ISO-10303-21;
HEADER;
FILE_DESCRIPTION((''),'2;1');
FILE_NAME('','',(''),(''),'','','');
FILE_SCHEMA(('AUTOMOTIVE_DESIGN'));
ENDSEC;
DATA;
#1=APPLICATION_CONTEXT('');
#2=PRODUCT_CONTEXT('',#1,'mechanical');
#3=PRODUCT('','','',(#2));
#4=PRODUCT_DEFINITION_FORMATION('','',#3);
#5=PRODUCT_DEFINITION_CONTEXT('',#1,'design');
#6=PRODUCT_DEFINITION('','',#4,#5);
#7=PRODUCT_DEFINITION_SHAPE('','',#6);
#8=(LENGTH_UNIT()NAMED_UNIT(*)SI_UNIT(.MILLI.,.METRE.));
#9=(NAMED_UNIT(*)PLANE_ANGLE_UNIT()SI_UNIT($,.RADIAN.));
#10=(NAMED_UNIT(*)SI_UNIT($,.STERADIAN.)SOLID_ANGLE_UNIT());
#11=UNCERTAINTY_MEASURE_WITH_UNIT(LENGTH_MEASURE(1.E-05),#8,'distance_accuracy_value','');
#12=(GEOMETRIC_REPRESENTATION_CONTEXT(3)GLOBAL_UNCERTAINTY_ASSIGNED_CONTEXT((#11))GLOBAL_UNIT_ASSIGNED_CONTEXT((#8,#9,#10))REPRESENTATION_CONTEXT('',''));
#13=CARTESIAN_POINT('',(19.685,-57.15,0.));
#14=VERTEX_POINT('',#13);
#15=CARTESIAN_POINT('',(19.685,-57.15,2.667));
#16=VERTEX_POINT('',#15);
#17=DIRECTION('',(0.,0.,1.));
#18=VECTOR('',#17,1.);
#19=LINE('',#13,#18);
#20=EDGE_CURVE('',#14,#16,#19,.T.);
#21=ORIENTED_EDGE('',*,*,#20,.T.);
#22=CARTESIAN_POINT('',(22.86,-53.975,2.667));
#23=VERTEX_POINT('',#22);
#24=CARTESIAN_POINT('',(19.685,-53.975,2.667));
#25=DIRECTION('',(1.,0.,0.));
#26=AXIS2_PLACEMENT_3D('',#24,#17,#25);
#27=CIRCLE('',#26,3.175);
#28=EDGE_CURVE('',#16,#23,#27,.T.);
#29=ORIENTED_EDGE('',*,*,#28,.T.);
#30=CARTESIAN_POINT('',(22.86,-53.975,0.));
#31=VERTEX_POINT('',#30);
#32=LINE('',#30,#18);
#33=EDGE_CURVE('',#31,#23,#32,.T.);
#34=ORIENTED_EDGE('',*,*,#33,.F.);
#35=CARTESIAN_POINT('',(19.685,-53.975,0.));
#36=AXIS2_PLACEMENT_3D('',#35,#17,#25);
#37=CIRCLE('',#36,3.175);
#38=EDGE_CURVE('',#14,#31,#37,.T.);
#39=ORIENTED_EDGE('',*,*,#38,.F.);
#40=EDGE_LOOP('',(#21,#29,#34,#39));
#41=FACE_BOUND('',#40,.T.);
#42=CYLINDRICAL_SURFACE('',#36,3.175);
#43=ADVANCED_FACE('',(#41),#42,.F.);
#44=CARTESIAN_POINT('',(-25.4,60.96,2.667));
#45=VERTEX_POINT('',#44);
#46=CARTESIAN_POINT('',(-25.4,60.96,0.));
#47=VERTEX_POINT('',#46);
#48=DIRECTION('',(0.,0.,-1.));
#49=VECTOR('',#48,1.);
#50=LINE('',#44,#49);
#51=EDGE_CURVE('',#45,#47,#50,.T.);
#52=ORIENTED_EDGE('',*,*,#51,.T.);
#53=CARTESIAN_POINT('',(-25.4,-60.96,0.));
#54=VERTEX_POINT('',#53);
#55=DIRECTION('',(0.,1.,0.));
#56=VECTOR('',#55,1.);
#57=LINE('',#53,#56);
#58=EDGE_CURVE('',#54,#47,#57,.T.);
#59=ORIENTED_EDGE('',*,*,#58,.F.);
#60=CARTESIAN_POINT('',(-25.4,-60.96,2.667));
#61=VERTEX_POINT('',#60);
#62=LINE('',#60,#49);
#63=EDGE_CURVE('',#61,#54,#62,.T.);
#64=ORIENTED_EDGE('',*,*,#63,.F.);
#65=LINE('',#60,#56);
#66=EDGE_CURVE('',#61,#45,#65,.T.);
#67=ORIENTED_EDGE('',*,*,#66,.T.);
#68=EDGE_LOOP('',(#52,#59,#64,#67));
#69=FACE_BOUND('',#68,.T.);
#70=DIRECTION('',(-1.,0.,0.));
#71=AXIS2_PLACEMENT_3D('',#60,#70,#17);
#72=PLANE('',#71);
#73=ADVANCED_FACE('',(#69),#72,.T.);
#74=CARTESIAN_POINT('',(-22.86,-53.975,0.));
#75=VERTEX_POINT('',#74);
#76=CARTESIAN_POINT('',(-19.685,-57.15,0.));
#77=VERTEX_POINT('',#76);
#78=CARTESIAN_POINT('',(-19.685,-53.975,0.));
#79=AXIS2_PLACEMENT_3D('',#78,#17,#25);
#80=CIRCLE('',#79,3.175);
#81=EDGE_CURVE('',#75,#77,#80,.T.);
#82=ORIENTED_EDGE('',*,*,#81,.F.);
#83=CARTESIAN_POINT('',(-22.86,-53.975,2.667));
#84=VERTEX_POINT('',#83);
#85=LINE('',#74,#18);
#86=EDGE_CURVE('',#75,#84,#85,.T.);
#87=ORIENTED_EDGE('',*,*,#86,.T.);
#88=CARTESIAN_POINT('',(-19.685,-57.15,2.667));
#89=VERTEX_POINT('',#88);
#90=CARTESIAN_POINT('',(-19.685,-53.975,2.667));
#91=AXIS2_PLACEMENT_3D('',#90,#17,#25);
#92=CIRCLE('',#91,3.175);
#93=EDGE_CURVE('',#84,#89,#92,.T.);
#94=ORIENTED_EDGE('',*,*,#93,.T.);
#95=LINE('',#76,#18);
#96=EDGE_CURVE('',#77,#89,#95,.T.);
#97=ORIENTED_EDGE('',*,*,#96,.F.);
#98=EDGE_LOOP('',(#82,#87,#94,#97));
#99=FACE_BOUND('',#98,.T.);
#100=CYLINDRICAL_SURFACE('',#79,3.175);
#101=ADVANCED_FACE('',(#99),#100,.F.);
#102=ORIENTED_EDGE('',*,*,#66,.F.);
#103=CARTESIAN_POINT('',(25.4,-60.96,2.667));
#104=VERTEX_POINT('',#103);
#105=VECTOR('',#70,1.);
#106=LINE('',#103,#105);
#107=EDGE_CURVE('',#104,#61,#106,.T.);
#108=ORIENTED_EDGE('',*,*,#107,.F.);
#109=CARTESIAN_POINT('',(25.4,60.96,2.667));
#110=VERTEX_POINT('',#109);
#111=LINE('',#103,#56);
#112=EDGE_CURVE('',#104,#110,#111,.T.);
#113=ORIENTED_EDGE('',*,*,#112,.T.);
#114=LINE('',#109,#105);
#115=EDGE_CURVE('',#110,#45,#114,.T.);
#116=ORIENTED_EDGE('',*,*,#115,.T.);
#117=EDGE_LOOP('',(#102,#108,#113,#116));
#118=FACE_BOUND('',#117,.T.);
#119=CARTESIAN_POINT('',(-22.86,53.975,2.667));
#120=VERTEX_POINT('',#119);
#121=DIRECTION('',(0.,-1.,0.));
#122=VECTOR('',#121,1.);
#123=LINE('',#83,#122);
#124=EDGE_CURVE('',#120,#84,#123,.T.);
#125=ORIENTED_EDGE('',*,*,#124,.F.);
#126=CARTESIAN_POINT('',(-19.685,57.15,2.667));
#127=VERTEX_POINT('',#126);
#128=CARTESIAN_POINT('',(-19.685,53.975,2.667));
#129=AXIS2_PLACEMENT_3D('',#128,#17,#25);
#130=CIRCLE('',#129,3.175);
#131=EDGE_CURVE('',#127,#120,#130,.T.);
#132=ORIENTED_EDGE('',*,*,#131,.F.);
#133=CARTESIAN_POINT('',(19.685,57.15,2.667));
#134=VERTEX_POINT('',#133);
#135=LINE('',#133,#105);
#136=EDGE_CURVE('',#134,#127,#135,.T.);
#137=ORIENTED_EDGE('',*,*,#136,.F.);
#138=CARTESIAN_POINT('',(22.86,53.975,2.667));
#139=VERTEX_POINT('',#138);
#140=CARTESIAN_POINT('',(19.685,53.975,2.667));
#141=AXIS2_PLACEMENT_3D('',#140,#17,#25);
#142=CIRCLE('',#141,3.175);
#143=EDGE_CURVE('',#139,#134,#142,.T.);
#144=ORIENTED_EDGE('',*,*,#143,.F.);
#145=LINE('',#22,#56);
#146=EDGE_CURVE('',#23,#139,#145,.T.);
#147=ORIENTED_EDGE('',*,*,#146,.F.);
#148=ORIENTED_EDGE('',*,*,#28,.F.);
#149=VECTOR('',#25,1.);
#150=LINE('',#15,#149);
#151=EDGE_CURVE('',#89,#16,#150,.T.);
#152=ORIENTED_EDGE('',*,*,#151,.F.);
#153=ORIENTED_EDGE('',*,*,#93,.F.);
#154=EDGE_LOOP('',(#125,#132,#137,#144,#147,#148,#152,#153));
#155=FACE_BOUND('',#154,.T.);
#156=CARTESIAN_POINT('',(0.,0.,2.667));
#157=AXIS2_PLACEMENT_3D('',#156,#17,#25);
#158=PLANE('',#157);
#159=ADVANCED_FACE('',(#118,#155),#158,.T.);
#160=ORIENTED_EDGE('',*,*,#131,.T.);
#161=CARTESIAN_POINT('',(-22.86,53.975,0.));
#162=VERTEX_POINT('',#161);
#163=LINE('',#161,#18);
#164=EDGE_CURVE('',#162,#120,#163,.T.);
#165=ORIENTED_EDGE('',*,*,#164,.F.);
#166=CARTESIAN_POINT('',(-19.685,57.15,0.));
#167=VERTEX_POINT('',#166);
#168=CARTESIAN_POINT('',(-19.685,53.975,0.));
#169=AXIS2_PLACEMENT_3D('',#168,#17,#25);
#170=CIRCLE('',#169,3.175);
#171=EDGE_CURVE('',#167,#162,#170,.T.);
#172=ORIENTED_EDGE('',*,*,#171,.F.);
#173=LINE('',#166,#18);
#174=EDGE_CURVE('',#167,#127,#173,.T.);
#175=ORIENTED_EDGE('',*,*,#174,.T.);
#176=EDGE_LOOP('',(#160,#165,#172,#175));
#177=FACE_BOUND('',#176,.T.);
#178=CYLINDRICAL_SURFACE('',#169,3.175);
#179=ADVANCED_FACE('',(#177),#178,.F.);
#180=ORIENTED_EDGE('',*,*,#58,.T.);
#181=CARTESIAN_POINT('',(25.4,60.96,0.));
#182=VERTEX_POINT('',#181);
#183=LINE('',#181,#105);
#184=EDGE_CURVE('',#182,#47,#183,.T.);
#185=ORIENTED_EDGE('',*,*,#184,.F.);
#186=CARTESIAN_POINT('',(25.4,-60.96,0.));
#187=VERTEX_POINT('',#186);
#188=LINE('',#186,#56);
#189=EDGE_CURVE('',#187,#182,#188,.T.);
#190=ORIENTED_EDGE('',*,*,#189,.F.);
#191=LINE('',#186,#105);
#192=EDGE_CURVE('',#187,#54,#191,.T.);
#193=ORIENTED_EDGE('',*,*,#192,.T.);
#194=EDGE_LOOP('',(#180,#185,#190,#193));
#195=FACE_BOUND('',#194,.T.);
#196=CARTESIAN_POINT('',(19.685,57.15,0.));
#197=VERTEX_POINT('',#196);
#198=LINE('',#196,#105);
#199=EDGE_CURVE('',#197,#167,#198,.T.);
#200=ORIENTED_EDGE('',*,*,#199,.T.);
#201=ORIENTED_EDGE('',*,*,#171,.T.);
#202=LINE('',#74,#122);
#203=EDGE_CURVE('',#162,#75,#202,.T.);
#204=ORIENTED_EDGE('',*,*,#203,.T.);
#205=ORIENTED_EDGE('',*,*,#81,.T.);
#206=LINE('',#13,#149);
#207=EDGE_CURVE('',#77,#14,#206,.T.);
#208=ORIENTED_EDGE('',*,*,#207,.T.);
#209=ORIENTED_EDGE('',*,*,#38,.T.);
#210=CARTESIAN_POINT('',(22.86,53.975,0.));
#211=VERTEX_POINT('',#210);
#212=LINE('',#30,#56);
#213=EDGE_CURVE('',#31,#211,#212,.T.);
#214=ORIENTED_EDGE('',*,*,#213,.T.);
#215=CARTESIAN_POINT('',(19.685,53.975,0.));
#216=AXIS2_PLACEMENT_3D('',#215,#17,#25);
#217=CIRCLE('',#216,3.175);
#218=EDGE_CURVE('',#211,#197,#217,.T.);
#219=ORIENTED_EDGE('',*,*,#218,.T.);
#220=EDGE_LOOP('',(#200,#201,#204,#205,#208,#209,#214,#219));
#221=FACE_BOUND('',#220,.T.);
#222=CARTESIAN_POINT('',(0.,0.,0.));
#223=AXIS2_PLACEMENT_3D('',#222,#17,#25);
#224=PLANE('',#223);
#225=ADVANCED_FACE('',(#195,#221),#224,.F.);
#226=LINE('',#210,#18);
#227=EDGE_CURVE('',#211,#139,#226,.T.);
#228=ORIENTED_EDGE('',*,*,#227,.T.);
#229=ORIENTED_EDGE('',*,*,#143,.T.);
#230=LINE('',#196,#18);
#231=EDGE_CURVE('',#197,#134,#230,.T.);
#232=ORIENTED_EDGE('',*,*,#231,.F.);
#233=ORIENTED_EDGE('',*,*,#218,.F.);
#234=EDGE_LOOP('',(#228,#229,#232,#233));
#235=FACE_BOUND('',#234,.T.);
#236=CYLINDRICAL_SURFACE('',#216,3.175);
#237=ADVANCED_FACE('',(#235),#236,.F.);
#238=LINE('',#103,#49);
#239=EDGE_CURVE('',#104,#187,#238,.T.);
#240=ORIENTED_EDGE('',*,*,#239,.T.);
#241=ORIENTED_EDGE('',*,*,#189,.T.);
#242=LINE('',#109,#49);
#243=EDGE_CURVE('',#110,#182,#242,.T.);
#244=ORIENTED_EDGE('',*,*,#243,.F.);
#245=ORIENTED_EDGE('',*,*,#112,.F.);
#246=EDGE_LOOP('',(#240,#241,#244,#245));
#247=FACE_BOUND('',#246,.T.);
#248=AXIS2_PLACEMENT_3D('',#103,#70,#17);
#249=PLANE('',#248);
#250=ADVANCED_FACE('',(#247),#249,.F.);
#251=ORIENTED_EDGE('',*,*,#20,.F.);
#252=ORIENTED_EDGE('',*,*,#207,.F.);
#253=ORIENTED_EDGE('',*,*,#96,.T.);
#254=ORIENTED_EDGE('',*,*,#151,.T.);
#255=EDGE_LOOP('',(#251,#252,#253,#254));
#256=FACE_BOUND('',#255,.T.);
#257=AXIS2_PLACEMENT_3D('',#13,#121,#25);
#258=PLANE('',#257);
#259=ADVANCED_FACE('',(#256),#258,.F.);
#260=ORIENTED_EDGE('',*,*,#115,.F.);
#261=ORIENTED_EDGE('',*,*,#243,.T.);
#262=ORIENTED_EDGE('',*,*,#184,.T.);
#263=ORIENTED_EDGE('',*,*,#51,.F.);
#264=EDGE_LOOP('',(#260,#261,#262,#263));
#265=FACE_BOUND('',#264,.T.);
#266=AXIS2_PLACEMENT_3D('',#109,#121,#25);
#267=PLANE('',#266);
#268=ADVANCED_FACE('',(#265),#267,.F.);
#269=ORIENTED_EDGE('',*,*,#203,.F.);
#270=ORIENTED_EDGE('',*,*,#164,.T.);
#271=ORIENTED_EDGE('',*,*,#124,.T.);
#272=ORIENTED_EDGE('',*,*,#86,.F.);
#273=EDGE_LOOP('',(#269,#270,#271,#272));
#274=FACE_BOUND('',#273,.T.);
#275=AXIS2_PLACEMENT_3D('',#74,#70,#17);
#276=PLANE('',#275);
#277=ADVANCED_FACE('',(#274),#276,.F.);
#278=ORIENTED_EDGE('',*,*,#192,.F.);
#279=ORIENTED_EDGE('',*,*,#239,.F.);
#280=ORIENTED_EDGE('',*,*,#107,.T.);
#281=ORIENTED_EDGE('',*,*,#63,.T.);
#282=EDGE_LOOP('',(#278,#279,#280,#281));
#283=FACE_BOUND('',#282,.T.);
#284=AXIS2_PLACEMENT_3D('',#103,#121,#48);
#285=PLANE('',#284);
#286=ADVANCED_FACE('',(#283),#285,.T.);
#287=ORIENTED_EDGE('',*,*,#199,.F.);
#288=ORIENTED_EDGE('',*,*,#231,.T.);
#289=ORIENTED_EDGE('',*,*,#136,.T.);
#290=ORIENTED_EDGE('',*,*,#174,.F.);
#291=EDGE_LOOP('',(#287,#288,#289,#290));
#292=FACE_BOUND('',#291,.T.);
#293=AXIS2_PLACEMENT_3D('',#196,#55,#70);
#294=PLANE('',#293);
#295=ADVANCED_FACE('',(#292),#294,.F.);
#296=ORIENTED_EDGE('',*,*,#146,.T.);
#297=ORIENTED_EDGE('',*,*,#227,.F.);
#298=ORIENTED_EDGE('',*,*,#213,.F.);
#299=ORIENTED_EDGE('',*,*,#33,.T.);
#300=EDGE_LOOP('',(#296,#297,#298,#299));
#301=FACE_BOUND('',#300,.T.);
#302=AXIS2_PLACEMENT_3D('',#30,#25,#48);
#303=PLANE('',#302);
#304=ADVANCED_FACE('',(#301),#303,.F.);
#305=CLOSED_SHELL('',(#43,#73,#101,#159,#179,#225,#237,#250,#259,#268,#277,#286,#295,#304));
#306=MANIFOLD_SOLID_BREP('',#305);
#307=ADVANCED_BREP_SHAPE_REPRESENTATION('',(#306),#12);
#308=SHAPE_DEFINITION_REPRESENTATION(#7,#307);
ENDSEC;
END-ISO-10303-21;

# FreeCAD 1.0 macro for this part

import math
import FreeCAD as App
import Part
import Sketcher

V = App.Vector
Q = App.Units.Quantity


def add_polygon(sketch, points):
    """Adds a closed chain of lines whose ends are joined by coincident constraints."""
    first, n = sketch.GeometryCount, len(points)
    for a, b in zip(points, points[1:] + points[:1]):
        sketch.addGeometry(Part.LineSegment(App.Vector(*a, 0), App.Vector(*b, 0)), False)
    for i in range(n):
        sketch.addConstraint(Sketcher.Constraint("Coincident", first + i, 2, first + (i + 1) % n, 1))

doc = App.newDocument("Part")
body = doc.addObject("PartDesign::Body", "Body")

# Sketch on XY plane
sketch1 = body.newObject("Sketcher::SketchObject", "Sketch")
sketch1.AttachmentSupport = (doc.getObject("XY_Plane"), [""])
sketch1.MapMode = "FlatFace"
add_polygon(sketch1, [(-25, 61), (-25, -61), (25, -61), (25, 61)])  # lines 0-3
sketch1.addConstraint([
    Sketcher.Constraint("Vertical", 0),
    Sketcher.Constraint("Horizontal", 1),
    Sketcher.Constraint("Vertical", 2),
    Sketcher.Constraint("Horizontal", 3),
    Sketcher.Constraint("Symmetric", 0, 2, 2, 2, -1, 1),
    Sketcher.Constraint("DistanceX", 1, 1, 1, 2, Q("2 in")),
    Sketcher.Constraint("DistanceY", 0, 2, 0, 1, Q("4.8 in")),
])
pad1 = body.newObject("PartDesign::Pad", "Pad")
pad1.Profile = sketch1
pad1.Length = Q("0.105 in")

# Sketch on XY plane
sketch2 = body.newObject("Sketcher::SketchObject", "Sketch001")
sketch2.AttachmentSupport = (doc.getObject("XY_Plane"), [""])
sketch2.MapMode = "FlatFace"
sketch2.AttachmentOffset = App.Placement(V(0, 0, 0.105 * 25.4), App.Rotation())
sketch2.addGeometry([
    Part.LineSegment(V(-19.7, -57.1, 0), V(19.7, -57.1, 0)),  # 0
    Part.ArcOfCircle(Part.Circle(V(19.7, -54, 0), V(0, 0, 1), 3.2), math.radians(-90), math.radians(0)),  # 1
    Part.LineSegment(V(22.9, -54, 0), V(22.9, 54, 0)),  # 2
    Part.ArcOfCircle(Part.Circle(V(19.7, 54, 0), V(0, 0, 1), 3.2), math.radians(0), math.radians(90)),  # 3
    Part.LineSegment(V(19.7, 57.1, 0), V(-19.7, 57.1, 0)),  # 4
    Part.ArcOfCircle(Part.Circle(V(-19.7, 54, 0), V(0, 0, 1), 3.2), math.radians(90), math.radians(180)),  # 5
    Part.LineSegment(V(-22.9, 54, 0), V(-22.9, -54, 0)),  # 6
    Part.ArcOfCircle(Part.Circle(V(-19.7, -54, 0), V(0, 0, 1), 3.2), math.radians(-180), math.radians(-90)),  # 7
], False)
sketch2.addConstraint([
    Sketcher.Constraint("Tangent", 0, 2, 1, 1),
    Sketcher.Constraint("Tangent", 1, 2, 2, 1),
    Sketcher.Constraint("Tangent", 2, 2, 3, 1),
    Sketcher.Constraint("Tangent", 3, 2, 4, 1),
    Sketcher.Constraint("Tangent", 4, 2, 5, 1),
    Sketcher.Constraint("Tangent", 5, 2, 6, 1),
    Sketcher.Constraint("Tangent", 6, 2, 7, 1),
    Sketcher.Constraint("Tangent", 7, 2, 0, 1),
    Sketcher.Constraint("Horizontal", 0),
    Sketcher.Constraint("Vertical", 2),
    Sketcher.Constraint("Horizontal", 4),
    Sketcher.Constraint("Vertical", 6),
    Sketcher.Constraint("Equal", 1, 3),
    Sketcher.Constraint("Equal", 3, 5),
    Sketcher.Constraint("Equal", 5, 7),
    Sketcher.Constraint("Symmetric", 1, 3, 5, 3, -1, 1),
    Sketcher.Constraint("Radius", 1, Q("0.125 in")),
    Sketcher.Constraint("DistanceX", 0, 1, 0, 2, Q("1.55 in")),
    Sketcher.Constraint("DistanceY", 2, 1, 2, 2, Q("4.25 in")),
])
pocket1 = body.newObject("PartDesign::Pocket", "Pocket")
pocket1.Profile = sketch2
pocket1.Type = "ThroughAll"

doc.recompute()
